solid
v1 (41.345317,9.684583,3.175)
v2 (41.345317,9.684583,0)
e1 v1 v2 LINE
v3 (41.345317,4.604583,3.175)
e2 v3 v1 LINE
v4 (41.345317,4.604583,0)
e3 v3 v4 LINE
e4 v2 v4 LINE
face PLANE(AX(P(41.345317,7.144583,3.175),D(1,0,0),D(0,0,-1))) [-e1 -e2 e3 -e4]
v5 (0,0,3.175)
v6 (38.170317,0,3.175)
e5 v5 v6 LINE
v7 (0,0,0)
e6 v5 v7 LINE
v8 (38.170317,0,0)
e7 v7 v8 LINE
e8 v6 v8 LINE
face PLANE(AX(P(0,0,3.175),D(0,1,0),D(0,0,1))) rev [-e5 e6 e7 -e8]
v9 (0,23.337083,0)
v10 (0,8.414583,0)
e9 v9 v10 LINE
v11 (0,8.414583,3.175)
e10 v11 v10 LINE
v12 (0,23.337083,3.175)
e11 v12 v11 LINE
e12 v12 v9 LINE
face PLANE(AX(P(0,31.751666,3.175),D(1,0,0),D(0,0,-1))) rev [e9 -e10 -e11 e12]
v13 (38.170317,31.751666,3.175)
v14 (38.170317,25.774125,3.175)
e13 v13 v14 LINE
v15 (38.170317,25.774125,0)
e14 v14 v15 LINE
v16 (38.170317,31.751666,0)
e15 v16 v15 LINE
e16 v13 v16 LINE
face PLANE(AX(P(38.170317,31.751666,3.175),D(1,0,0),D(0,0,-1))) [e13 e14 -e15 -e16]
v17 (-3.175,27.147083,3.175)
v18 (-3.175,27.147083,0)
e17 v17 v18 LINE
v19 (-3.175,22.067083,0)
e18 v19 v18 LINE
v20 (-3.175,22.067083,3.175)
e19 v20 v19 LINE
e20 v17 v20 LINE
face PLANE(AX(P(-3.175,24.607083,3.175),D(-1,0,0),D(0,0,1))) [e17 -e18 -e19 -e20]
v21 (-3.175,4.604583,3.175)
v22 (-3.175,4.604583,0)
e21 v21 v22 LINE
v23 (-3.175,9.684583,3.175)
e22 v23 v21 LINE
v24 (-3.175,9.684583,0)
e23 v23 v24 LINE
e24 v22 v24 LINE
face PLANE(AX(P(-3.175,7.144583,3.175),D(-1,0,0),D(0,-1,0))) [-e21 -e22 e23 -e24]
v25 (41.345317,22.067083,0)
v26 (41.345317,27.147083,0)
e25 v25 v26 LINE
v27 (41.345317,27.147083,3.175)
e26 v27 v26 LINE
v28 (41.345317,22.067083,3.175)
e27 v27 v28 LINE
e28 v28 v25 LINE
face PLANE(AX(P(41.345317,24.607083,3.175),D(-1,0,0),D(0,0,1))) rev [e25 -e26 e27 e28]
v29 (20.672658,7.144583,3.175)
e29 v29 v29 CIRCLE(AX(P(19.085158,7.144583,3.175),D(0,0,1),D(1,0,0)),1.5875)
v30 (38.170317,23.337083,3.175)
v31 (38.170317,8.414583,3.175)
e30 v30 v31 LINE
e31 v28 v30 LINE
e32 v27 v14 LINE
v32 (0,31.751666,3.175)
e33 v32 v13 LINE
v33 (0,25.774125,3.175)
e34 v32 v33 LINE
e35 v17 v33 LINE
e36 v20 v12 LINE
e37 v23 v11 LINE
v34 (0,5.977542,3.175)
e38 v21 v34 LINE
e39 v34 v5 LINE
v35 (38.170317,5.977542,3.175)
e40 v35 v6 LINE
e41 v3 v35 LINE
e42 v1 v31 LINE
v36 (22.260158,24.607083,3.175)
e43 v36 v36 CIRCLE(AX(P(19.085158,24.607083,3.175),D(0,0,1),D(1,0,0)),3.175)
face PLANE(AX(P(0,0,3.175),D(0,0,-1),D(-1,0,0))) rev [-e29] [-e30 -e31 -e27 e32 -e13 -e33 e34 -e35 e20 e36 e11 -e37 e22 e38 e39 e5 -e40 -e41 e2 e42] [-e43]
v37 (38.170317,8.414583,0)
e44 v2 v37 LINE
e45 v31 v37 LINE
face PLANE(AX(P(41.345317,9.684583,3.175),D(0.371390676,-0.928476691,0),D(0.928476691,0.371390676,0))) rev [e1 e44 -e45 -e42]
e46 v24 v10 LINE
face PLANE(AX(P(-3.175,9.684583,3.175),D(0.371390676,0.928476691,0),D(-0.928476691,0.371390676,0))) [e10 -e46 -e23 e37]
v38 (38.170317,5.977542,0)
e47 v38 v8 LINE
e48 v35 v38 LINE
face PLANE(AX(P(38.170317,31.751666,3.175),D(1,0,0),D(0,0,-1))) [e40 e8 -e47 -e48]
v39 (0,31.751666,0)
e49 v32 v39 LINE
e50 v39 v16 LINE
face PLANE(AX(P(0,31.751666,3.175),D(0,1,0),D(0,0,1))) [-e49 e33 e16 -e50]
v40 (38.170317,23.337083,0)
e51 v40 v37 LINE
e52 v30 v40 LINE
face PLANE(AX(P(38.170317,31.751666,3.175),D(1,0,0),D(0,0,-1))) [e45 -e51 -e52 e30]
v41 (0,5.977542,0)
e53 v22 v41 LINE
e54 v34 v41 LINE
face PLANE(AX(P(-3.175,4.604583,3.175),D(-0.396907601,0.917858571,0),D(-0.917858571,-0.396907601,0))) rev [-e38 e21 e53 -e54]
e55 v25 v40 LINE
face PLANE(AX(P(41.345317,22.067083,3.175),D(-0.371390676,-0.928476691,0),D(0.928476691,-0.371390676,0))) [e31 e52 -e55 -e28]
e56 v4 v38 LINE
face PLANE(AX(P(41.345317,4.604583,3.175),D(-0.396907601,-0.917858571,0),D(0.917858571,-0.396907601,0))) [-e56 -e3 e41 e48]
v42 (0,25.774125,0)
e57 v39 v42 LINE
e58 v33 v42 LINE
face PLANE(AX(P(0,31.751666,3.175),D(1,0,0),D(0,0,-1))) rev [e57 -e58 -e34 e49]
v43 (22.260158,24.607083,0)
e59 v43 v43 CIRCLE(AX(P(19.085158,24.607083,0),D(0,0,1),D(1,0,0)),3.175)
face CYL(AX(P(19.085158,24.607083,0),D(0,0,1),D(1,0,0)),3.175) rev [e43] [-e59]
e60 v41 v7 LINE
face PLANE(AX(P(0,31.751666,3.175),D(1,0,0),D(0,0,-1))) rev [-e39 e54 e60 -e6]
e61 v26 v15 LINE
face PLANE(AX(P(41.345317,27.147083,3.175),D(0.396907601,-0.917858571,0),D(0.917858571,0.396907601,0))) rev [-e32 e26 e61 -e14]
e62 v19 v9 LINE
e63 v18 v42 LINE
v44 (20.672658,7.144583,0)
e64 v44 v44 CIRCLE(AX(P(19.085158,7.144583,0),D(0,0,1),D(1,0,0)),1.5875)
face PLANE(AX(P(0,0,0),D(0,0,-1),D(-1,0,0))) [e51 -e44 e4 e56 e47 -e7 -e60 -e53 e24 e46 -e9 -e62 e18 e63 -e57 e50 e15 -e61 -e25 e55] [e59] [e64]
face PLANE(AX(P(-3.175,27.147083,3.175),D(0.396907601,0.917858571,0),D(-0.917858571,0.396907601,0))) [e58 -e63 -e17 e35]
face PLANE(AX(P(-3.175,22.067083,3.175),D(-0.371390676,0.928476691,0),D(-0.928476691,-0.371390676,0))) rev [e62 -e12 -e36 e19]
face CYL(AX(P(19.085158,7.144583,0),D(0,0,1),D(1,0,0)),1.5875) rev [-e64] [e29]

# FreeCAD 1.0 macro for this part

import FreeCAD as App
import Part
import Sketcher

V = App.Vector
Q = App.Units.Quantity


def add_polygon(sketch, points):
    """Adds a closed chain of lines whose ends are joined by coincident constraints."""
    first, n = sketch.GeometryCount, len(points)
    for a, b in zip(points, points[1:] + points[:1]):
        sketch.addGeometry(Part.LineSegment(App.Vector(*a, 0), App.Vector(*b, 0)), False)
    for i in range(n):
        sketch.addConstraint(Sketcher.Constraint("Coincident", first + i, 2, first + (i + 1) % n, 1))

doc = App.newDocument("Part")
params = doc.addObject("Spreadsheet::Sheet", "Params")
for row, (alias, value) in enumerate([
    ("sketch1_height", "0.2 in"),
    ("pad1_length", "0.125 in"),
    ("sketch2_diameter", "0.25 in"),
    ("sketch2_diameter2", "0.125 in"),
    ("pocket1_length", "0.125 in"),
], start=1):
    params.set(f"A{row}", alias)
    params.set(f"B{row}", "=" + value)
    params.setAlias(f"B{row}", alias)

body = doc.addObject("PartDesign::Body", "Body")

# Sketch on XY plane
sketch1 = body.newObject("Sketcher::SketchObject", "Sketch")
sketch1.AttachmentSupport = (doc.getObject("XY_Plane"), [""])
sketch1.MapMode = "FlatFace"
add_polygon(sketch1, [(0, 6), (0, 0), (38.2, 0), (38.2, 6), (41.3, 4.6), (41.3, 9.7), (38.2, 8.4), (38.2, 23.3), (41.3, 22.1), (41.3, 27.1), (38.2, 25.8), (38.2, 31.8), (0, 31.8), (0, 25.8), (-3.2, 27.1), (-3.2, 22.1), (0, 23.3), (0, 8.4), (-3.2, 9.7), (-3.2, 4.6)])  # lines 0-19
sketch1.addConstraint([
    Sketcher.Constraint("Vertical", 0),
    Sketcher.Constraint("Horizontal", 1),
    Sketcher.Constraint("Vertical", 2),
    Sketcher.Constraint("Vertical", 4),
    Sketcher.Constraint("Vertical", 6),
    Sketcher.Constraint("Vertical", 8),
    Sketcher.Constraint("Vertical", 10),
    Sketcher.Constraint("Horizontal", 11),
    Sketcher.Constraint("Vertical", 12),
    Sketcher.Constraint("Vertical", 14),
    Sketcher.Constraint("Vertical", 16),
    Sketcher.Constraint("Vertical", 18),
    Sketcher.Constraint("Coincident", 0, 2, -1, 1),
    Sketcher.Constraint("PointOnObject", 11, 2, -2),
    Sketcher.Constraint("PointOnObject", 15, 2, -2),
    Sketcher.Constraint("Parallel", 3, 13),
    Sketcher.Constraint("Parallel", 5, 15),
    Sketcher.Constraint("Parallel", 7, 17),
    Sketcher.Constraint("Parallel", 9, 19),
    Sketcher.Constraint("Horizontal", 9, 2, 12, 2),
    Sketcher.Constraint("Horizontal", 8, 2, 13, 2),
    Sketcher.Constraint("Horizontal", 7, 2, 14, 2),
    Sketcher.Constraint("Horizontal", 6, 2, 15, 2),
    Sketcher.Constraint("Horizontal", 5, 2, 16, 2),
    Sketcher.Constraint("Horizontal", 4, 2, 17, 2),
    Sketcher.Constraint("Horizontal", 3, 2, 18, 2),
    Sketcher.Constraint("Horizontal", 2, 2, 19, 2),
    Sketcher.Constraint("Vertical", 2, 2, 5, 2),
    Sketcher.Constraint("Vertical", 4, 2, 7, 2),
    Sketcher.Constraint("Vertical", 14, 2, 17, 2),
    Sketcher.Constraint("Equal", 4, 8),
    Sketcher.Constraint("Equal", 2, 10),
    Sketcher.Constraint("DistanceY", 4, 1, 4, 2, Q("0.2 in")),
    Sketcher.Constraint("DistanceY", 5, 2, 4, 2, Q("0.05 in")),
    Sketcher.Constraint("DistanceY", 6, 1, 6, 2, Q("0.5875 in")),
    Sketcher.Constraint("DistanceX", 13, 2, -1, 1, Q("0.125 in")),
    Sketcher.Constraint("DistanceY", 0, 2, 0, 1, 5.977542),
    Sketcher.Constraint("Distance", 3, 3.459139),
    Sketcher.Constraint("DistanceX", 1, 1, 1, 2, 38.170317),
])
sketch1.setExpression("Constraints[52]", "Params.sketch1_height")
pad1 = body.newObject("PartDesign::Pad", "Pad")
pad1.Profile = sketch1
pad1.setExpression("Length", "Params.pad1_length")

# Sketch on XY plane
sketch2 = body.newObject("Sketcher::SketchObject", "Sketch001")
sketch2.AttachmentSupport = (doc.getObject("XY_Plane"), [""])
sketch2.MapMode = "FlatFace"
sketch2.AttachmentOffset = App.Placement(V(0, 0, 0.125 * 25.4), App.Rotation())
sketch2.addGeometry([
    Part.Circle(V(19.1, 24.6, 0), V(0, 0, 1), 3.2),
    Part.Circle(V(19.1, 7.1, 0), V(0, 0, 1), 1.6),
], False)
sketch2.addConstraint([
    Sketcher.Constraint("Vertical", 0, 3, 1, 3),
    Sketcher.Constraint("Diameter", 0, Q("0.25 in")),
    Sketcher.Constraint("Diameter", 1, Q("0.125 in")),
    Sketcher.Constraint("DistanceY", 1, 3, 0, 3, Q("0.6875 in")),
    Sketcher.Constraint("DistanceX", -1, 1, 0, 3, 19.085158),
    Sketcher.Constraint("DistanceY", -1, 1, 0, 3, 24.607083),
])
sketch2.setExpression("Constraints[1]", "Params.sketch2_diameter")
sketch2.setExpression("Constraints[2]", "Params.sketch2_diameter2")
pocket1 = body.newObject("PartDesign::Pocket", "Pocket")
pocket1.Profile = sketch2
pocket1.setExpression("Length", "Params.pocket1_length")

doc.recompute()
